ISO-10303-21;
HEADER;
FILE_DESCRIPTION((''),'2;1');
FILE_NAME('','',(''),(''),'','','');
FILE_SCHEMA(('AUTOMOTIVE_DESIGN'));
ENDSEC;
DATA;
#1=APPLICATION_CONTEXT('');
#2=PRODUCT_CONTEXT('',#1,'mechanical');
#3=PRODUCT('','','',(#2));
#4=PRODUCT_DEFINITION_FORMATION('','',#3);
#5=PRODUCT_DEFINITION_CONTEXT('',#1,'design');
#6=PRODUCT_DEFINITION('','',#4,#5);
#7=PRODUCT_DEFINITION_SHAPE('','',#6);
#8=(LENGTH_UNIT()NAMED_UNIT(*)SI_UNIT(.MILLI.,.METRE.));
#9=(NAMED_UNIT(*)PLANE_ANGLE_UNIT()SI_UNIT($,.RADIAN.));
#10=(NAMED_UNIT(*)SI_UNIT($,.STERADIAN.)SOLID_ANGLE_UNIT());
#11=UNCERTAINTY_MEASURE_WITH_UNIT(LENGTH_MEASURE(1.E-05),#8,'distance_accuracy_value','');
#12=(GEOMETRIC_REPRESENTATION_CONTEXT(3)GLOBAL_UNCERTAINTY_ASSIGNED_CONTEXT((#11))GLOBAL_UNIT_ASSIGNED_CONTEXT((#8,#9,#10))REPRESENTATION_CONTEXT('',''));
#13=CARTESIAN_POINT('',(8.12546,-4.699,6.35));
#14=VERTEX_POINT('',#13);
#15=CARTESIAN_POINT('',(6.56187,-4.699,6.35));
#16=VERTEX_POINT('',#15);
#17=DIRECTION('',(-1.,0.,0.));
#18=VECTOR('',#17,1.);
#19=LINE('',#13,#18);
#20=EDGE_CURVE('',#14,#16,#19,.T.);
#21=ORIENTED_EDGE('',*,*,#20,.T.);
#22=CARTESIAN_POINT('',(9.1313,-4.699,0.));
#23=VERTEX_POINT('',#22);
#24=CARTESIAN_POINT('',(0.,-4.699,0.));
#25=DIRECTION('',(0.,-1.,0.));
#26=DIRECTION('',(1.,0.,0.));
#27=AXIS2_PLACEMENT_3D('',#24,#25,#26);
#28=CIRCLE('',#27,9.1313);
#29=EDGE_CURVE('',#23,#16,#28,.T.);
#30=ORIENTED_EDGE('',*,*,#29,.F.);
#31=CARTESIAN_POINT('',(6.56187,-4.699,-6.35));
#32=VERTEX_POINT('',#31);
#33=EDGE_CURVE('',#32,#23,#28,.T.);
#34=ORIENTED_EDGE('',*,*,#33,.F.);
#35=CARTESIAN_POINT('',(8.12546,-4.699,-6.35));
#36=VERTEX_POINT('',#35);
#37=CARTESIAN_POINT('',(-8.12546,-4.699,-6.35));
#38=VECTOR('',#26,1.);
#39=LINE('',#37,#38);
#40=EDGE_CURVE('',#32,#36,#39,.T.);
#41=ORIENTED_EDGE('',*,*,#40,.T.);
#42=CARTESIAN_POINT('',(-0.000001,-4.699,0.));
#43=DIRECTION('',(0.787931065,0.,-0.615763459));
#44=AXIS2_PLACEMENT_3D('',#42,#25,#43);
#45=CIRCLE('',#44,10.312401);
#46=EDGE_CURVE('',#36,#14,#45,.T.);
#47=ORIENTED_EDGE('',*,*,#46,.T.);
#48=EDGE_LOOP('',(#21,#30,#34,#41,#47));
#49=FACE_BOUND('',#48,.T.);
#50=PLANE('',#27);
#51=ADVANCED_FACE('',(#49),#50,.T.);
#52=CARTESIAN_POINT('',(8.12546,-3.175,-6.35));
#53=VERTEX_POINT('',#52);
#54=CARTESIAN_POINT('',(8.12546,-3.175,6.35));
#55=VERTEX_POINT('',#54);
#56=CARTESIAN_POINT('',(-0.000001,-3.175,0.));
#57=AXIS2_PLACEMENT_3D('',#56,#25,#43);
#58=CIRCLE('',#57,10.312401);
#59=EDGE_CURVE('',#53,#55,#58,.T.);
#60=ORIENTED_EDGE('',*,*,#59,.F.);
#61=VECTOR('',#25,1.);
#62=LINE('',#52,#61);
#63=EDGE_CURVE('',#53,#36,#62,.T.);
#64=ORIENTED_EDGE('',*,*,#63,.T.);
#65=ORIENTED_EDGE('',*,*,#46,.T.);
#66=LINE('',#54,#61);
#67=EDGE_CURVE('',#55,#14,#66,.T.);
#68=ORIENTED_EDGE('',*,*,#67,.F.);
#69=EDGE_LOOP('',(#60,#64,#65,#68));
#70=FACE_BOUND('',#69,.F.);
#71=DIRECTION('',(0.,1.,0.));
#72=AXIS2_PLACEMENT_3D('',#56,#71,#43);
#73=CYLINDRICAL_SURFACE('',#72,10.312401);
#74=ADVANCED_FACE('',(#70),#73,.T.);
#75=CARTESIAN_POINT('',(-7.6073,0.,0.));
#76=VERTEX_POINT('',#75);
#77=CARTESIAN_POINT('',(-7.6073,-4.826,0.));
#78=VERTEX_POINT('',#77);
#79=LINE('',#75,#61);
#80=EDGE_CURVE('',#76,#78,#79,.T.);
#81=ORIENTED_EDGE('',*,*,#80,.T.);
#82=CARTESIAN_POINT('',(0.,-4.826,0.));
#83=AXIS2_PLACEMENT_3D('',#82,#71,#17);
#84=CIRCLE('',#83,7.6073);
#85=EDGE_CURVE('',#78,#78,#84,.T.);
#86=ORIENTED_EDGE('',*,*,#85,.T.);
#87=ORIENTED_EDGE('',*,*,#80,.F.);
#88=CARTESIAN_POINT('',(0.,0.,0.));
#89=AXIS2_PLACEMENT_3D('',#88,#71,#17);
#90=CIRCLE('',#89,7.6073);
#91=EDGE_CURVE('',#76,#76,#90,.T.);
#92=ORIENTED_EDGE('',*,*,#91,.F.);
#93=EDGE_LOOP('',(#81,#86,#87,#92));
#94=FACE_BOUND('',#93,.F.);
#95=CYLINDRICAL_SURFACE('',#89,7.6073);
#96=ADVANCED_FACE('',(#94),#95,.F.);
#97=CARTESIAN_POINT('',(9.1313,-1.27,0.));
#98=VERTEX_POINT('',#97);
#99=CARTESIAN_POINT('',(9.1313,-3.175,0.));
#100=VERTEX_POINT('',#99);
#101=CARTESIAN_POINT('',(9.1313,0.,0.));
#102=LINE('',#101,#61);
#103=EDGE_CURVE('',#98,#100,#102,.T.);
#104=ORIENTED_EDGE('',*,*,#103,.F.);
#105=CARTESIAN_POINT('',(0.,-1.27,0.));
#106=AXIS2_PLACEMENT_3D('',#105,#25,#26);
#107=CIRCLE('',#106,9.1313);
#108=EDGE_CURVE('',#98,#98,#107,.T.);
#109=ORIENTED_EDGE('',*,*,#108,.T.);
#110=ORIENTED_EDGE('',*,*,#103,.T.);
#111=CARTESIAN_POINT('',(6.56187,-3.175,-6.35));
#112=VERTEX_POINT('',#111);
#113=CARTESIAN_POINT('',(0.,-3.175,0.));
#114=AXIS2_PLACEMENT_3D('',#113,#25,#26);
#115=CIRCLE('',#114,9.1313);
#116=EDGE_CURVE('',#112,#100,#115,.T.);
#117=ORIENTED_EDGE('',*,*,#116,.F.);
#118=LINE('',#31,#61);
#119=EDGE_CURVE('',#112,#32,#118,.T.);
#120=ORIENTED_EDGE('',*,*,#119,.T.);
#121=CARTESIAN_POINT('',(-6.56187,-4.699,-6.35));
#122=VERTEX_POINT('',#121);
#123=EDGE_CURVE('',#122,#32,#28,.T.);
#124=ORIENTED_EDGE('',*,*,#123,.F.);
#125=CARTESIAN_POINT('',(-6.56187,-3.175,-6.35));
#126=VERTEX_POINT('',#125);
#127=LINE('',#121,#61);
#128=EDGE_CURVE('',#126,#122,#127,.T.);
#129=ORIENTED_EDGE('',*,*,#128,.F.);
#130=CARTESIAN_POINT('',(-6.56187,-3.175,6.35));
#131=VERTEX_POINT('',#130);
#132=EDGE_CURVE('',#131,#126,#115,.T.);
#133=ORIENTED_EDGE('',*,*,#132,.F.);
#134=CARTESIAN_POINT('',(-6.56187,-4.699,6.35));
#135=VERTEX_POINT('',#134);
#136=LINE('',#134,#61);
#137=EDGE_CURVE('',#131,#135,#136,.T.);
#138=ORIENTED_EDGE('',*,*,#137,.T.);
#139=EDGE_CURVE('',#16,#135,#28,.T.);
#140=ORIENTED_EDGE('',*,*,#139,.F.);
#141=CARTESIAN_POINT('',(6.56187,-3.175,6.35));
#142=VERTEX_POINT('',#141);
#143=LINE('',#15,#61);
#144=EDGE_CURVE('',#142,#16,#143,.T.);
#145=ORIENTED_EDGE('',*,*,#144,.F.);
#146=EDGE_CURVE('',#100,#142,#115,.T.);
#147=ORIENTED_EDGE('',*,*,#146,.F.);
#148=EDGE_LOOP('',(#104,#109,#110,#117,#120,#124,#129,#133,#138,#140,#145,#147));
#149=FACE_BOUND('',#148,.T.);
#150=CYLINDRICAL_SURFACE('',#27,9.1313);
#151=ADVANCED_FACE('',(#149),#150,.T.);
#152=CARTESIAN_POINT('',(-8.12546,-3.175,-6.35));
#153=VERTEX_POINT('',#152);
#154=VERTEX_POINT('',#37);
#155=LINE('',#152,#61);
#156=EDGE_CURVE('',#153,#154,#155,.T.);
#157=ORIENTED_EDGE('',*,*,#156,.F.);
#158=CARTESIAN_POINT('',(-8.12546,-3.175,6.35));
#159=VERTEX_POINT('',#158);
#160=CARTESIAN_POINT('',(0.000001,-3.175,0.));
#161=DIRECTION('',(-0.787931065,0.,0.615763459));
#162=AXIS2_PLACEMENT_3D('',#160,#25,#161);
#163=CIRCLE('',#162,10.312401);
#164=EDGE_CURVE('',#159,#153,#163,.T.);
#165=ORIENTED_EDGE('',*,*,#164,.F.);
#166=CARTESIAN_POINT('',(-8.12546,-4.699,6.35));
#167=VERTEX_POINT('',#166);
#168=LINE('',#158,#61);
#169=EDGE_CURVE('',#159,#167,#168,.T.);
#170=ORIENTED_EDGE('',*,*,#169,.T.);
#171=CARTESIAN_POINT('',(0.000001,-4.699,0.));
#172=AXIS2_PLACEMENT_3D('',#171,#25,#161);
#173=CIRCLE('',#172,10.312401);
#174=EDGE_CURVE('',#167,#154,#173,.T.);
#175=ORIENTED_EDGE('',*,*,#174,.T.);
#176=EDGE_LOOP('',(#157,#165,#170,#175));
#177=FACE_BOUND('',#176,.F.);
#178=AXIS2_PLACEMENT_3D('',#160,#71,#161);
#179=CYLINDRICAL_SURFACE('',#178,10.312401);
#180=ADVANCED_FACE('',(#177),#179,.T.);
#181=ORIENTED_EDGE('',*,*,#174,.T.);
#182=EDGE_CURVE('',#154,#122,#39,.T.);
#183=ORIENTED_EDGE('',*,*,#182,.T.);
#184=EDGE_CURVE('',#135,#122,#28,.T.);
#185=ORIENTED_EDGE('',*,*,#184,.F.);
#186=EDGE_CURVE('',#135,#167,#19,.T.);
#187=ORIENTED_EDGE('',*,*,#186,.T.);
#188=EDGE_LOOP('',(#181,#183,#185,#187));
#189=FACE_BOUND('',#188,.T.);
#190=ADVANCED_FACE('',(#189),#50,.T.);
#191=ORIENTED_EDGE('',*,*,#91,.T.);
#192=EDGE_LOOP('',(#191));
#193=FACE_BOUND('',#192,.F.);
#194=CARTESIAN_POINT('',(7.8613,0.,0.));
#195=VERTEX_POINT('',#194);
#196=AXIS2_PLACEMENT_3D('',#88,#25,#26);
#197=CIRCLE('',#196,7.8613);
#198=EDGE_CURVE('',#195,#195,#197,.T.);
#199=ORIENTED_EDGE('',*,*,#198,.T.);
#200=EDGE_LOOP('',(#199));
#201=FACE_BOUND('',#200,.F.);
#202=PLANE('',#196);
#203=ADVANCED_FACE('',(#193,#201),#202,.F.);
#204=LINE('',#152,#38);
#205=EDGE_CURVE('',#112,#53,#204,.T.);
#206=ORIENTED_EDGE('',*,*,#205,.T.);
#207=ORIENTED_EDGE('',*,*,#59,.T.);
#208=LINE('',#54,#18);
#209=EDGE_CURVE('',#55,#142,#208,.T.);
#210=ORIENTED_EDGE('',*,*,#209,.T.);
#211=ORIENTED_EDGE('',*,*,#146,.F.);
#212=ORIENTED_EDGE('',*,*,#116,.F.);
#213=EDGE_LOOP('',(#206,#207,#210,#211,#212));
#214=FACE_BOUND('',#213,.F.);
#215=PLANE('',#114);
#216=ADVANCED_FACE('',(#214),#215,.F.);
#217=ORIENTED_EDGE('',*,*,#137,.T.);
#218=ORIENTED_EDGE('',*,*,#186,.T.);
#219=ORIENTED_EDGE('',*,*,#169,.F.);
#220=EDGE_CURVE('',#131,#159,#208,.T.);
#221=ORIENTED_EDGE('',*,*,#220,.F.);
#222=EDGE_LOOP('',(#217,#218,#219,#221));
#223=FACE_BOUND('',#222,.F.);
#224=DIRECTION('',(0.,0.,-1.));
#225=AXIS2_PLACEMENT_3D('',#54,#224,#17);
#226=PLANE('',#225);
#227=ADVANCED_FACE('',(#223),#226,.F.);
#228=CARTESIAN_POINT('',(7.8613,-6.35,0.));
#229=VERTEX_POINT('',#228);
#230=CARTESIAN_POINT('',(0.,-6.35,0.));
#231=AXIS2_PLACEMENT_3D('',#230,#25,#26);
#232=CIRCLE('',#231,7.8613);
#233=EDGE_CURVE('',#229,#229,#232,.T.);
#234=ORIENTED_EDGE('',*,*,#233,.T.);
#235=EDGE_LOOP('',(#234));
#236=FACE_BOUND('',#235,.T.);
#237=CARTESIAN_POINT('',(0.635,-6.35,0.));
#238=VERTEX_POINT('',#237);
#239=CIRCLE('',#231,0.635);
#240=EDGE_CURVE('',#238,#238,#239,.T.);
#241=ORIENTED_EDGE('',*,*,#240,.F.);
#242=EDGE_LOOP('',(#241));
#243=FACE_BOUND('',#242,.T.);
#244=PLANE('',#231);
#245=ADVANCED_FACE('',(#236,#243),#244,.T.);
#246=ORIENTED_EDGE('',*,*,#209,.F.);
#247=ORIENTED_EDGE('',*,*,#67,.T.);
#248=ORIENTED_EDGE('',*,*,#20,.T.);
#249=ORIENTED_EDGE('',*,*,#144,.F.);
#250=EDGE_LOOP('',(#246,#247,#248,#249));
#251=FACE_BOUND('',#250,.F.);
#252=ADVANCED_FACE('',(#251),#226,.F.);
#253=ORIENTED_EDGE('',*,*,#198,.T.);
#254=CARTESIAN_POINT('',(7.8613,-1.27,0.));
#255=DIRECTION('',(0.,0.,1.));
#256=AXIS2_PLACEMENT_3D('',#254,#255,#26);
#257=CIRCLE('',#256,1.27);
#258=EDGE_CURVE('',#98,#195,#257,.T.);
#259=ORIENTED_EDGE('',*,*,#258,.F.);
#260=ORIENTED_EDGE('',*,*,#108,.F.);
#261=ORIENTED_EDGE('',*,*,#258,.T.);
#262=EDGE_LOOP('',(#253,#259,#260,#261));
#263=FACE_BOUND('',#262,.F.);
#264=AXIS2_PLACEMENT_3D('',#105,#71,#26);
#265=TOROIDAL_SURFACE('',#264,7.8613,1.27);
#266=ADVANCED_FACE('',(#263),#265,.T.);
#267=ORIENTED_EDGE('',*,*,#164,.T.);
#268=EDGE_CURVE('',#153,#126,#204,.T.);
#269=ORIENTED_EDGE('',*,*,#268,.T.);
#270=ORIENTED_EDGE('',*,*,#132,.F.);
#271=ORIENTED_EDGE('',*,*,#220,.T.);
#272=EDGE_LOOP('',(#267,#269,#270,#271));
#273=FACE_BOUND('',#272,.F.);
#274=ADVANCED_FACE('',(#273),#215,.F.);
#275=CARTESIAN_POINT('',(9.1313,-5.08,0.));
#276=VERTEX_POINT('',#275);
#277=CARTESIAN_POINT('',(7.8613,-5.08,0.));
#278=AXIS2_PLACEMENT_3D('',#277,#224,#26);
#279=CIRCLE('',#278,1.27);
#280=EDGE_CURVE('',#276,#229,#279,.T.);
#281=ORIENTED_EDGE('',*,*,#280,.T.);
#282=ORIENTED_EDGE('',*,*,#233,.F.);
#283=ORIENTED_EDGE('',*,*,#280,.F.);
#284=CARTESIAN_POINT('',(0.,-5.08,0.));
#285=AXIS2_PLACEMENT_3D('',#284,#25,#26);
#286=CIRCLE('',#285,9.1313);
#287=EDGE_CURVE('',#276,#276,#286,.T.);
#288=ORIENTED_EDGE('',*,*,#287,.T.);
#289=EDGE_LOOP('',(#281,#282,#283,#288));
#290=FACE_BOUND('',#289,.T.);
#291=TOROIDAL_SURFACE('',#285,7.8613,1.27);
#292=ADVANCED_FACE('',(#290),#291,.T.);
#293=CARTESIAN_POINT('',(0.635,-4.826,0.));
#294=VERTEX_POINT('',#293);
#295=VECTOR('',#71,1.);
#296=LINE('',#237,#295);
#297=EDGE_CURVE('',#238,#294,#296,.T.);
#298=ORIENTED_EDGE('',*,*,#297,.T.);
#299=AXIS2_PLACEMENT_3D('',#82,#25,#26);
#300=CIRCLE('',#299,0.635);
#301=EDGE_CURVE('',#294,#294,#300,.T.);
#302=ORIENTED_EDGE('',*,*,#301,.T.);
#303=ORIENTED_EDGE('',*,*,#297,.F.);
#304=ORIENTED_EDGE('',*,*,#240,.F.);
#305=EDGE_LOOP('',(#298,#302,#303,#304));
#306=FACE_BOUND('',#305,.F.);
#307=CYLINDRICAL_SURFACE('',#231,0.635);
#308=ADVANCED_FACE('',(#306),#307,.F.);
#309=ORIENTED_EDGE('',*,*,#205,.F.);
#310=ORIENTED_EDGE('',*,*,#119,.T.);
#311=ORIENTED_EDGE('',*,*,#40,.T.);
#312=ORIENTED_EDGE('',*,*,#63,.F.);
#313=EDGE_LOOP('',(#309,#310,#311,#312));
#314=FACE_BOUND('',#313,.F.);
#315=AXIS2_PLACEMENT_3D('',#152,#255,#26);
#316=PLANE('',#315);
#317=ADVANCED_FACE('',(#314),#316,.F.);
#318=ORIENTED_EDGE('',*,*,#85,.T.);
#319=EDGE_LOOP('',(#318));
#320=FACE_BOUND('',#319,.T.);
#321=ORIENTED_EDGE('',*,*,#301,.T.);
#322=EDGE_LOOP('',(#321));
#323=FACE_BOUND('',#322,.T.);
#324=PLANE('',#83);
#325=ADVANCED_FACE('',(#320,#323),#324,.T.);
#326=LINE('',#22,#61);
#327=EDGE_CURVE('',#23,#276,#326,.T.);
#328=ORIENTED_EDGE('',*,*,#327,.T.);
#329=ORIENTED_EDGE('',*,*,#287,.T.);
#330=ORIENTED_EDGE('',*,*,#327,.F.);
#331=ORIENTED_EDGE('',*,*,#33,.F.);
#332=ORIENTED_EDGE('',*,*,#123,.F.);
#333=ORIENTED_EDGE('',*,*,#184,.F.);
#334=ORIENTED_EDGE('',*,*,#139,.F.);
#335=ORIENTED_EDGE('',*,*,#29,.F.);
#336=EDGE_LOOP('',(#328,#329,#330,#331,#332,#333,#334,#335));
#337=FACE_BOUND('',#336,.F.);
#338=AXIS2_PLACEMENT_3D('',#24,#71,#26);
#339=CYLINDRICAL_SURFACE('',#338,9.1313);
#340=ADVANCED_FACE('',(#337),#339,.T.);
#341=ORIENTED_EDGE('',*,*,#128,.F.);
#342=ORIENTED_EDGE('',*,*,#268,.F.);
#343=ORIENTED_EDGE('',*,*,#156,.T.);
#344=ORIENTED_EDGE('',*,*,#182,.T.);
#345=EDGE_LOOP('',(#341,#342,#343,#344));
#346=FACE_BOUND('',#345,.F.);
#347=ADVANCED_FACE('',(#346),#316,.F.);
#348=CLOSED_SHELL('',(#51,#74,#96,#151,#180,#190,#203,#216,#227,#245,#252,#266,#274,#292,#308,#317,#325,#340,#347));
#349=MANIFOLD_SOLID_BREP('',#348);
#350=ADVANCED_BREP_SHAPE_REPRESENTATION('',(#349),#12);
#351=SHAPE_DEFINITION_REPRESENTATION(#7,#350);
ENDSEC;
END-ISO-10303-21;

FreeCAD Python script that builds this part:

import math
import FreeCAD as App
import Part
import Sketcher
from FreeCAD import Vector
Q = App.Units.Quantity


def edges_at(feature, points):
    """Names of the edges that pass closest to the given points."""
    edges = feature.Shape.Edges
    near = lambda p: min(range(len(edges)), key=lambda i: edges[i].distToShape(Part.Vertex(*p))[0])
    return sorted({f"Edge{near(p) + 1}" for p in points})

doc = App.newDocument("Part")
params = doc.addObject("Spreadsheet::Sheet", "Params")
for row, (alias, value) in enumerate([
    ("sketch1_diameter", "0.719 in"),
    ("pad1_length", "0.125 in"),
    ("sketch2_radius", "0.4060001 in"),
    ("pad2_length", "0.06 in"),
    ("sketch3_diameter", "0.719 in"),
    ("pad3_length", "0.06 in"),
    ("sketch4_diameter", "0.719 in"),
    ("pad4_length", "0.065 in"),
    ("sketch5_diameter", "0.599 in"),
    ("pocket1_length", "0.19 in"),
    ("sketch6_diameter", "0.05 in"),
    ("pocket2_length", "1 in"),
    ("pocket3_length", "1 in"),
    ("fillet_radius", "0.05 in"),
    ("fillet2_radius", "0.05 in"),
], start=1):
    params.set(f"A{row}", alias)
    params.set(f"B{row}", "=" + value)
    params.setAlias(f"B{row}", alias)

body = doc.addObject("PartDesign::Body", "Body")

# Sketch on XZ plane
sketch1 = doc.addObject("Sketcher::SketchObject", "Sketch")
body.addObject(sketch1)
sketch1.AttachmentSupport = (doc.XZ_Plane, [""])
sketch1.MapMode = "FlatFace"
sketch1.addGeometry(Part.Circle(Vector(0, 0, 0), Vector(0, 0, 1), 9), False)
sketch1.addConstraint(Sketcher.Constraint("Coincident", 0, 3, -1, 1))
sketch1.addConstraint(Sketcher.Constraint("Diameter", 0, Q("0.719 in")))
sketch1.setExpression("Constraints[1]", "Params.sketch1_diameter")
pad1 = doc.addObject("PartDesign::Pad", "Pad")
body.addObject(pad1)
pad1.Profile = sketch1
pad1.setExpression("Length", "Params.pad1_length")

# Sketch on XZ plane
sketch2 = doc.addObject("Sketcher::SketchObject", "Sketch001")
body.addObject(sketch2)
sketch2.AttachmentSupport = (doc.XZ_Plane, [""])
sketch2.MapMode = "FlatFace"
sketch2.AttachmentOffset = App.Placement(Vector(0, 0, 0.125 * 25.4), App.Rotation())
sketch2.addGeometry(Part.LineSegment(Vector(8, 6, 0), Vector(-8, 6, 0)), False)
sketch2.addGeometry(Part.ArcOfCircle(Part.Circle(Vector(0, 0, 0), Vector(0, 0, 1), 10), math.radians(142), math.radians(218)), False)
sketch2.addGeometry(Part.LineSegment(Vector(-8, -6, 0), Vector(8, -6, 0)), False)
sketch2.addGeometry(Part.ArcOfCircle(Part.Circle(Vector(0, 0, 0), Vector(0, 0, 1), 10), math.radians(-38), math.radians(38)), False)
sketch2.addConstraint(Sketcher.Constraint("Coincident", 0, 2, 1, 1))
sketch2.addConstraint(Sketcher.Constraint("Coincident", 1, 2, 2, 1))
sketch2.addConstraint(Sketcher.Constraint("Coincident", 2, 2, 3, 1))
sketch2.addConstraint(Sketcher.Constraint("Coincident", 3, 2, 0, 1))
sketch2.addConstraint(Sketcher.Constraint("Horizontal", 0))
sketch2.addConstraint(Sketcher.Constraint("Horizontal", 2))
sketch2.addConstraint(Sketcher.Constraint("Coincident", 1, 3, -1, 1))
sketch2.addConstraint(Sketcher.Constraint("Coincident", 3, 3, -1, 1))
sketch2.addConstraint(Sketcher.Constraint("Equal", 1, 3))
sketch2.addConstraint(Sketcher.Constraint("Vertical", 0, 2, 1, 2))
sketch2.addConstraint(Sketcher.Constraint("Radius", 1, Q("0.4060001 in")))
sketch2.addConstraint(Sketcher.Constraint("DistanceY", 1, 2, 0, 2, Q("0.5 in")))
sketch2.setExpression("Constraints[10]", "Params.sketch2_radius")
pad2 = doc.addObject("PartDesign::Pad", "Pad001")
body.addObject(pad2)
pad2.Profile = sketch2
pad2.setExpression("Length", "Params.pad2_length")

# Sketch on XZ plane
sketch3 = doc.addObject("Sketcher::SketchObject", "Sketch002")
body.addObject(sketch3)
sketch3.AttachmentSupport = (doc.XZ_Plane, [""])
sketch3.MapMode = "FlatFace"
sketch3.AttachmentOffset = App.Placement(Vector(0, 0, 0.185 * 25.4), App.Rotation())
sketch3.addGeometry(Part.Circle(Vector(0, 0, 0), Vector(0, 0, 1), 9), False)
sketch3.addConstraint(Sketcher.Constraint("Coincident", 0, 3, -1, 1))
sketch3.addConstraint(Sketcher.Constraint("Diameter", 0, Q("0.719 in")))
sketch3.setExpression("Constraints[1]", "Params.sketch3_diameter")
pad3 = doc.addObject("PartDesign::Pad", "Pad002")
body.addObject(pad3)
pad3.Profile = sketch3
pad3.setExpression("Length", "Params.pad3_length")
pad3.Reversed = True

# Sketch on XZ plane
sketch4 = doc.addObject("Sketcher::SketchObject", "Sketch003")
body.addObject(sketch4)
sketch4.AttachmentSupport = (doc.XZ_Plane, [""])
sketch4.MapMode = "FlatFace"
sketch4.AttachmentOffset = App.Placement(Vector(0, 0, 0.185 * 25.4), App.Rotation())
sketch4.addGeometry(Part.Circle(Vector(0, 0, 0), Vector(0, 0, 1), 9), False)
sketch4.addConstraint(Sketcher.Constraint("Coincident", 0, 3, -1, 1))
sketch4.addConstraint(Sketcher.Constraint("Diameter", 0, Q("0.719 in")))
sketch4.setExpression("Constraints[1]", "Params.sketch4_diameter")
pad4 = doc.addObject("PartDesign::Pad", "Pad003")
body.addObject(pad4)
pad4.Profile = sketch4
pad4.setExpression("Length", "Params.pad4_length")

# Sketch on XZ plane
sketch5 = doc.addObject("Sketcher::SketchObject", "Sketch004")
body.addObject(sketch5)
sketch5.AttachmentSupport = (doc.XZ_Plane, [""])
sketch5.MapMode = "FlatFace"
sketch5.addGeometry(Part.Circle(Vector(0, 0, 0), Vector(0, 0, 1), 8), False)
sketch5.addConstraint(Sketcher.Constraint("Coincident", 0, 3, -1, 1))
sketch5.addConstraint(Sketcher.Constraint("Diameter", 0, Q("0.599 in")))
sketch5.setExpression("Constraints[1]", "Params.sketch5_diameter")
pocket1 = doc.addObject("PartDesign::Pocket", "Pocket")
body.addObject(pocket1)
pocket1.Profile = sketch5
pocket1.setExpression("Length", "Params.pocket1_length")
pocket1.Reversed = True

# Sketch on XZ plane
sketch6 = doc.addObject("Sketcher::SketchObject", "Sketch005")
body.addObject(sketch6)
sketch6.AttachmentSupport = (doc.XZ_Plane, [""])
sketch6.MapMode = "FlatFace"
sketch6.AttachmentOffset = App.Placement(Vector(0, 0, 0.25 * 25.4), App.Rotation())
sketch6.addGeometry(Part.Circle(Vector(0, 0, 0), Vector(0, 0, 1), 0.6), False)
sketch6.addConstraint(Sketcher.Constraint("Coincident", 0, 3, -1, 1))
sketch6.addConstraint(Sketcher.Constraint("Diameter", 0, Q("0.05 in")))
sketch6.setExpression("Constraints[1]", "Params.sketch6_diameter")
pocket2 = doc.addObject("PartDesign::Pocket", "Pocket001")
body.addObject(pocket2)
pocket2.Profile = sketch6
pocket2.setExpression("Length", "Params.pocket2_length")
pocket3 = doc.addObject("PartDesign::Pocket", "Pocket002")
body.addObject(pocket3)
pocket3.Profile = sketch6
pocket3.setExpression("Length", "Params.pocket3_length")
doc.recompute()

fillet = doc.addObject("PartDesign::Fillet", "Fillet")
body.addObject(fillet)
fillet.Base = (pocket3, edges_at(pocket3, [(-9.131, -6.35, 0)]))
fillet.setExpression("Radius", "Params.fillet_radius")
doc.recompute()

fillet2 = doc.addObject("PartDesign::Fillet", "Fillet001")
body.addObject(fillet2)
fillet2.Base = (fillet, edges_at(fillet, [(-9.131, 0, 0)]))
fillet2.setExpression("Radius", "Params.fillet2_radius")

doc.recompute()
